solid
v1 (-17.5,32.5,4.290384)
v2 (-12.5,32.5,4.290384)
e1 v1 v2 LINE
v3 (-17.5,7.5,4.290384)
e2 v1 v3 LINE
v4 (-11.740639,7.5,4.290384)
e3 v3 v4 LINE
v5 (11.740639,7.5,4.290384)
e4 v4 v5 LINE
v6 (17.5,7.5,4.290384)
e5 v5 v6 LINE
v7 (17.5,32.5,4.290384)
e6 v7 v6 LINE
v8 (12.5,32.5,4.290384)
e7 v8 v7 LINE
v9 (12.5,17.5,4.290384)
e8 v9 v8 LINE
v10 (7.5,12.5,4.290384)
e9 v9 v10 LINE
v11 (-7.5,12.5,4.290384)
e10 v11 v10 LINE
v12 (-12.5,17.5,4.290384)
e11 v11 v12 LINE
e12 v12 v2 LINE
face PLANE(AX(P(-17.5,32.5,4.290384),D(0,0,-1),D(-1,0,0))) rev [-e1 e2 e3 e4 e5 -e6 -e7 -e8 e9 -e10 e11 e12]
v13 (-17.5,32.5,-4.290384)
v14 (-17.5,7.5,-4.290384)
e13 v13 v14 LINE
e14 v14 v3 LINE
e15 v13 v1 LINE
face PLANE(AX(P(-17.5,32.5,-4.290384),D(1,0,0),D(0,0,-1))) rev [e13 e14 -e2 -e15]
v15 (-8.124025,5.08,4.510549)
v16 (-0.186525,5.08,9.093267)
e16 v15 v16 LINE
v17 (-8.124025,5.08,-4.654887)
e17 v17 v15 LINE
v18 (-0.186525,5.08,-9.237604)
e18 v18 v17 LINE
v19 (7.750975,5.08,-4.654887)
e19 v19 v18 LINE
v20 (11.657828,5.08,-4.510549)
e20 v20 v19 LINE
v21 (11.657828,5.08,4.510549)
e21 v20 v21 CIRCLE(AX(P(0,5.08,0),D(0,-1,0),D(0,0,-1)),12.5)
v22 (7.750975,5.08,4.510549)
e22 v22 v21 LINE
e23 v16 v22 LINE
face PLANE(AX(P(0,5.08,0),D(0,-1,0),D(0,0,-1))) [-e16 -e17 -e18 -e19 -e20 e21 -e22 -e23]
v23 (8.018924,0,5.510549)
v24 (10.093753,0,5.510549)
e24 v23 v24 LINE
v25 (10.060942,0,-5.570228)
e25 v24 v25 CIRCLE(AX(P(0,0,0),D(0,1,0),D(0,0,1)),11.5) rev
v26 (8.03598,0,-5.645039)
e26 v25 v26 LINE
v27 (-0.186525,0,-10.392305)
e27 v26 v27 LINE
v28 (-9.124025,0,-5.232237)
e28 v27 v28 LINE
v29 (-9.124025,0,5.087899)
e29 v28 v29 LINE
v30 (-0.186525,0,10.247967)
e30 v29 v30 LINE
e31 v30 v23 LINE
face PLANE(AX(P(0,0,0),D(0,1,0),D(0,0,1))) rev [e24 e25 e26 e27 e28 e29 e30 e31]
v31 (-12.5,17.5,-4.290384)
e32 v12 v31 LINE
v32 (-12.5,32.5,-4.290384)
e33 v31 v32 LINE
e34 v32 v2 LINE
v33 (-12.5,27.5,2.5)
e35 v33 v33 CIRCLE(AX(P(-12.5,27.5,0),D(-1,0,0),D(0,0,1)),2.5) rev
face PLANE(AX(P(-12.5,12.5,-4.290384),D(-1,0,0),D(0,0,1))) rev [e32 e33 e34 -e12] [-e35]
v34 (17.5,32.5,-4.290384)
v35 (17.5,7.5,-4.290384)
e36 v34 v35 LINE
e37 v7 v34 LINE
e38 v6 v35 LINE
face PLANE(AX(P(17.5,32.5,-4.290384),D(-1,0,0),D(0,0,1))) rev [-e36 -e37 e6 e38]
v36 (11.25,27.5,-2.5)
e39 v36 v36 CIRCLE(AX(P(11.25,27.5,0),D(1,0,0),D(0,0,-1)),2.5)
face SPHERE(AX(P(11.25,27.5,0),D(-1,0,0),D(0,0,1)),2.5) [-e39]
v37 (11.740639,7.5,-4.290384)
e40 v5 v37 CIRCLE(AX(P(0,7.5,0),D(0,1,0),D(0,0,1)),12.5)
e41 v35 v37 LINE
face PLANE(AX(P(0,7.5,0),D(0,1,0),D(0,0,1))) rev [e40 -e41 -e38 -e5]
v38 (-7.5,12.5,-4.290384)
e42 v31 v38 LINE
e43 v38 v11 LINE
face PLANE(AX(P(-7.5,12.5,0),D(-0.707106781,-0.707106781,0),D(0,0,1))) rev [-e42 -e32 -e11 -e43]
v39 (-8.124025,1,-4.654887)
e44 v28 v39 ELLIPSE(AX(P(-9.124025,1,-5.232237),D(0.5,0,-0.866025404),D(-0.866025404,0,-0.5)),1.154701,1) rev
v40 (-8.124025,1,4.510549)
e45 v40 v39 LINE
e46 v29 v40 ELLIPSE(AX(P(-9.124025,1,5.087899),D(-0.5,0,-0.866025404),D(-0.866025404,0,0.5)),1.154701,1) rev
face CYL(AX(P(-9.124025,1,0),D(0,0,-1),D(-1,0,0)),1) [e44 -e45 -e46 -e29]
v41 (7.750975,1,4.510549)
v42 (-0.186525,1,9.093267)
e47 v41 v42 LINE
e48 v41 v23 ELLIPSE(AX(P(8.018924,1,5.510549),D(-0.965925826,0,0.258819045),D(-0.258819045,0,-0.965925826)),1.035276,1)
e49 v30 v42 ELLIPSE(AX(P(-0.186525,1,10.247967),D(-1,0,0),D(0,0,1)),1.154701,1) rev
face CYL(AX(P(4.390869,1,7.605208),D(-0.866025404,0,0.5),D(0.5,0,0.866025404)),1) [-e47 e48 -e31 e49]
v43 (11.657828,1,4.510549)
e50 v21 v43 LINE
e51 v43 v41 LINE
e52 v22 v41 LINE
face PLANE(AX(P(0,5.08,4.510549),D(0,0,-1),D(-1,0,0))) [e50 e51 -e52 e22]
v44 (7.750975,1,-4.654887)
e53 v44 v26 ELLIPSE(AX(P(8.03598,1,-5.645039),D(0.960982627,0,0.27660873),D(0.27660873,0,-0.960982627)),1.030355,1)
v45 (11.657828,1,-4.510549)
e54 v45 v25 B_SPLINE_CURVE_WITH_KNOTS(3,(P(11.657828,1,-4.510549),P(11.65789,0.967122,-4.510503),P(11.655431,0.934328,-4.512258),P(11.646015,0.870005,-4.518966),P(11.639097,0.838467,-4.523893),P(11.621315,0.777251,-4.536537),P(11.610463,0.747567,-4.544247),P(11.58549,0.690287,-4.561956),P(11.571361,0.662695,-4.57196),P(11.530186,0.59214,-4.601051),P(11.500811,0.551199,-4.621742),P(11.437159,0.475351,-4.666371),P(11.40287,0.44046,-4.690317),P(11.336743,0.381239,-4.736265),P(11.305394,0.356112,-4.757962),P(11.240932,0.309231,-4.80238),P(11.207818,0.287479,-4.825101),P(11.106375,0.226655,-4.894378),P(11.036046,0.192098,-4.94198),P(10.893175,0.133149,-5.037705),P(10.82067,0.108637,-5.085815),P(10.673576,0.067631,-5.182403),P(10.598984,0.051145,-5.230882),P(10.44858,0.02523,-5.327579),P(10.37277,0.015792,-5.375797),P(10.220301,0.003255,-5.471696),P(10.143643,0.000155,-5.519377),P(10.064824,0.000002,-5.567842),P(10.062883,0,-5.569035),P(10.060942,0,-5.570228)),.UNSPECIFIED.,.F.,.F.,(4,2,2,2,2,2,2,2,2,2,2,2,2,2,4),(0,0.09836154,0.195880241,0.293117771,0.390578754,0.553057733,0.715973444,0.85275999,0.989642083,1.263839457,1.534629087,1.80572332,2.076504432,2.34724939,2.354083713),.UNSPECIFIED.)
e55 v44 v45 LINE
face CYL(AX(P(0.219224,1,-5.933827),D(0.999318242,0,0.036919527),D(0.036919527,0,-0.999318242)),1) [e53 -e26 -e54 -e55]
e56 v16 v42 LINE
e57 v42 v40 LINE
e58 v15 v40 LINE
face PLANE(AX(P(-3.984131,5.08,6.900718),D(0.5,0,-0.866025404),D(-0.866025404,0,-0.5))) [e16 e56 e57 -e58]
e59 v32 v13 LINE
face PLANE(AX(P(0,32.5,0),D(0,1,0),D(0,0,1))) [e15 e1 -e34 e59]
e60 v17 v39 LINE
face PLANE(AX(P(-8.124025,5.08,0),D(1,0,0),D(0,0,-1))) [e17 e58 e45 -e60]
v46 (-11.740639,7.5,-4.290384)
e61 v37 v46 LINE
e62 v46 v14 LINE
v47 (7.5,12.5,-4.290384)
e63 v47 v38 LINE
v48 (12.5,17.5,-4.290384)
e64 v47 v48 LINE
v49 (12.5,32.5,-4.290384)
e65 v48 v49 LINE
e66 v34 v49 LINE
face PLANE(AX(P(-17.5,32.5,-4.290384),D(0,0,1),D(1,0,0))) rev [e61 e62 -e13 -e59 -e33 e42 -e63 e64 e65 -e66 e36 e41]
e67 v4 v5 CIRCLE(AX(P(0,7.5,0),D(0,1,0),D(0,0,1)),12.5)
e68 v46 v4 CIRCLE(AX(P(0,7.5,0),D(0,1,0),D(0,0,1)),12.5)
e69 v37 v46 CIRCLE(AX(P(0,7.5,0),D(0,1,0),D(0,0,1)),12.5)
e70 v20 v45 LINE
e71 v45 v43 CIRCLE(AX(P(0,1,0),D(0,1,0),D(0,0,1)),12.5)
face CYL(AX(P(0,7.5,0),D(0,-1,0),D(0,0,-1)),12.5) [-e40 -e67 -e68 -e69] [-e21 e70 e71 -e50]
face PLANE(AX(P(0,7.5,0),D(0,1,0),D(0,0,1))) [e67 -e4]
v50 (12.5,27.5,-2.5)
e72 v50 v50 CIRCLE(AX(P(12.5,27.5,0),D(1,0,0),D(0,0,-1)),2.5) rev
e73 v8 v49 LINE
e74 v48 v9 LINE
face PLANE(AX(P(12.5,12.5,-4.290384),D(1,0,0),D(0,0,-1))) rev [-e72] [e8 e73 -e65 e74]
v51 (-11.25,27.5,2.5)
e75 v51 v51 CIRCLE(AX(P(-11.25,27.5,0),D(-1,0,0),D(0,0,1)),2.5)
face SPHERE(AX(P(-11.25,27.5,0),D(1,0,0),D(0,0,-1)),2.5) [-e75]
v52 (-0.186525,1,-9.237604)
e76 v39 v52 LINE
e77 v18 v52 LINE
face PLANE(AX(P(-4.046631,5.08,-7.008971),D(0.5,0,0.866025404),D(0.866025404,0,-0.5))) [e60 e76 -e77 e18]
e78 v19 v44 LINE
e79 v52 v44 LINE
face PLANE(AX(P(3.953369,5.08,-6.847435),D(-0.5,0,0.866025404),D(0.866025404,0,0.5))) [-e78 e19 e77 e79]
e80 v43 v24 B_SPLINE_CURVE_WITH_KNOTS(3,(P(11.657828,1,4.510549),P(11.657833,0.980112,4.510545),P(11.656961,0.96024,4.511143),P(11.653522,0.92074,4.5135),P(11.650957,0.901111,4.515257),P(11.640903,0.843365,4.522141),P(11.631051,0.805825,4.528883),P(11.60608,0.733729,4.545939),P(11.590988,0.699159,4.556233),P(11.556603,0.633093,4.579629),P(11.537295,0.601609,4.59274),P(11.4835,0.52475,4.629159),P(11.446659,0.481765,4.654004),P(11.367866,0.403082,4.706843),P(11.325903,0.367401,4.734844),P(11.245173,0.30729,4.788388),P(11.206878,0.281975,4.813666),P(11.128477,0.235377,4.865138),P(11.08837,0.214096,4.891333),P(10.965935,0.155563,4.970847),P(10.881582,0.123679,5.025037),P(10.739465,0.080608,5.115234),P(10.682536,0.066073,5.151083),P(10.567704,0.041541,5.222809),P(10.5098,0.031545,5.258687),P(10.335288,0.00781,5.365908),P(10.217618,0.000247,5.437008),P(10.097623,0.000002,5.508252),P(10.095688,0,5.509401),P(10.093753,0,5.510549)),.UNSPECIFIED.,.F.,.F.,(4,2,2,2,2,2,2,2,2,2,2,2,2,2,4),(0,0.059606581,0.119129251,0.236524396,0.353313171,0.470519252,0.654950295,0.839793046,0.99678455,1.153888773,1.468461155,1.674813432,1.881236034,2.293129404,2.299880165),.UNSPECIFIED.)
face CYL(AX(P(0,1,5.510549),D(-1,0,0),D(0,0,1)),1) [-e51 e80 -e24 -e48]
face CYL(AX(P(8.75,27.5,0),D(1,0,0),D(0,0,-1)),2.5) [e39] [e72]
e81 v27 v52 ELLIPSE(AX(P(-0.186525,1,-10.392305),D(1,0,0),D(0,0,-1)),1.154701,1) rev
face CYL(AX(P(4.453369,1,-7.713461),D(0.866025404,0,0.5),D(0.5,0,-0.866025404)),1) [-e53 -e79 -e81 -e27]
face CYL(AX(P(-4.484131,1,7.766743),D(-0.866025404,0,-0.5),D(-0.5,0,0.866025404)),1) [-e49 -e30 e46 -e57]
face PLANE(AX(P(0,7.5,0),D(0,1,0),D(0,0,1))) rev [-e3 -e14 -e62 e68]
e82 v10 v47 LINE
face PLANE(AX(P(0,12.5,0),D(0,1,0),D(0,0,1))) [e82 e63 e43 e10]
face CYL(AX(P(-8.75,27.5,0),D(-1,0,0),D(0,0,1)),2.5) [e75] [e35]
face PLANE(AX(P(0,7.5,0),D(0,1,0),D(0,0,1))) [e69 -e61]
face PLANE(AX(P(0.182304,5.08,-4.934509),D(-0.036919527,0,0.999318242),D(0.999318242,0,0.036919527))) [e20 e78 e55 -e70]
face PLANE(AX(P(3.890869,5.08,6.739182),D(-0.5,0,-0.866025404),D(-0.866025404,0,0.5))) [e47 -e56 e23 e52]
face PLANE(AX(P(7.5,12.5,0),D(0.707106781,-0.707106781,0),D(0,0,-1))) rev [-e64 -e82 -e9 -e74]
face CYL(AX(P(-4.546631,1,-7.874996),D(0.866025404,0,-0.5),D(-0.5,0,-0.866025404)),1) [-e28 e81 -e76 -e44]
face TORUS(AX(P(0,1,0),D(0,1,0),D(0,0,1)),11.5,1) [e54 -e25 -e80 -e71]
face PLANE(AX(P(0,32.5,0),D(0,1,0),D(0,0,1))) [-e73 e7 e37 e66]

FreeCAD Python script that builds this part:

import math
import FreeCAD as App
import Part
import Sketcher
from FreeCAD import Vector
Q = App.Units.Quantity


def edges_at(feature, points):
    """Names of the edges that pass closest to the given points."""
    edges = feature.Shape.Edges
    near = lambda p: min(range(len(edges)), key=lambda i: edges[i].distToShape(Part.Vertex(*p))[0])
    return sorted({f"Edge{near(p) + 1}" for p in points})

doc = App.newDocument("Part")
params = doc.addObject("Spreadsheet::Sheet", "Params")
for row, (alias, value) in enumerate([
    ("sketch1_diameter", "25 mm"),
    ("pad1_length", "7.5 mm"),
    ("sketch2_width", "35 mm"),
    ("pad2_length", "25 mm"),
    ("sketch3_width", "25 mm"),
    ("pocket1_length", "20 mm"),
    ("sketch4_diameter", "5 mm"),
    ("pad3_length", "3.75 mm"),
    ("sketch5_diameter", "5 mm"),
    ("pad4_length", "3.75 mm"),
    ("fillet_radius", "2.5 mm"),
    ("fillet2_radius", "2.5 mm"),
    ("chamfer_size", "5 mm"),
    ("chamfer2_size", "5 mm"),
    ("sketch6_radius", "12.5 mm"),
    ("pocket2_length", "5.08 mm"),
    ("fillet3_radius", "1 mm"),
], start=1):
    params.set(f"A{row}", alias)
    params.set(f"B{row}", "=" + value)
    params.setAlias(f"B{row}", alias)

body = doc.addObject("PartDesign::Body", "Body")

sketch1 = body.newObject("Sketcher::SketchObject", "Sketch")
sketch1.AttachmentSupport = (doc.getObject("XZ_Plane"), [""])
sketch1.MapMode = "FlatFace"
sketch1.addGeometry(Part.Circle(Vector(0, 0, 0), Vector(0, 0, 1), 12), False)
sketch1.addConstraint(Sketcher.Constraint("Coincident", 0, 3, -1, 1))
sketch1.addConstraint(Sketcher.Constraint("Diameter", 0, 25.0))
sketch1.setExpression("Constraints[1]", "Params.sketch1_diameter")
pad1 = body.newObject("PartDesign::Pad", "Pad")
pad1.Profile = sketch1
pad1.setExpression("Length", "Params.pad1_length")
pad1.Reversed = True

sketch2 = body.newObject("Sketcher::SketchObject", "Sketch001")
sketch2.AttachmentSupport = (doc.getObject("XZ_Plane"), [""])
sketch2.MapMode = "FlatFace"
sketch2.AttachmentOffset = App.Placement(Vector(0, 0, -7.5), App.Rotation())
sketch2.addGeometry(Part.LineSegment(Vector(-18, -4, 0), Vector(-18, 4, 0)), False)
sketch2.addGeometry(Part.LineSegment(Vector(-18, 4, 0), Vector(18, 4, 0)), False)
sketch2.addGeometry(Part.LineSegment(Vector(18, 4, 0), Vector(18, -4, 0)), False)
sketch2.addGeometry(Part.LineSegment(Vector(18, -4, 0), Vector(-18, -4, 0)), False)
sketch2.addConstraint(Sketcher.Constraint("Coincident", 0, 2, 1, 1))
sketch2.addConstraint(Sketcher.Constraint("Coincident", 1, 2, 2, 1))
sketch2.addConstraint(Sketcher.Constraint("Coincident", 2, 2, 3, 1))
sketch2.addConstraint(Sketcher.Constraint("Coincident", 3, 2, 0, 1))
sketch2.addConstraint(Sketcher.Constraint("Vertical", 0))
sketch2.addConstraint(Sketcher.Constraint("Horizontal", 1))
sketch2.addConstraint(Sketcher.Constraint("Vertical", 2))
sketch2.addConstraint(Sketcher.Constraint("Horizontal", 3))
sketch2.addConstraint(Sketcher.Constraint("Symmetric", 0, 2, 2, 2, -1, 1))
sketch2.addConstraint(Sketcher.Constraint("DistanceX", 1, 1, 1, 2, 35.0))
sketch2.addConstraint(Sketcher.Constraint("DistanceY", 0, 1, 0, 2, 8.580768))
sketch2.setExpression("Constraints[9]", "Params.sketch2_width")
pad2 = body.newObject("PartDesign::Pad", "Pad001")
pad2.Profile = sketch2
pad2.setExpression("Length", "Params.pad2_length")
pad2.Reversed = True

sketch3 = body.newObject("Sketcher::SketchObject", "Sketch002")
sketch3.AttachmentSupport = (doc.getObject("XZ_Plane"), [""])
sketch3.MapMode = "FlatFace"
sketch3.AttachmentOffset = App.Placement(Vector(0, 0, -32.5), App.Rotation())
sketch3.addGeometry(Part.LineSegment(Vector(-12, -4, 0), Vector(-12, 4, 0)), False)
sketch3.addGeometry(Part.LineSegment(Vector(-12, 4, 0), Vector(12, 4, 0)), False)
sketch3.addGeometry(Part.LineSegment(Vector(12, 4, 0), Vector(12, -4, 0)), False)
sketch3.addGeometry(Part.LineSegment(Vector(12, -4, 0), Vector(-12, -4, 0)), False)
sketch3.addConstraint(Sketcher.Constraint("Coincident", 0, 2, 1, 1))
sketch3.addConstraint(Sketcher.Constraint("Coincident", 1, 2, 2, 1))
sketch3.addConstraint(Sketcher.Constraint("Coincident", 2, 2, 3, 1))
sketch3.addConstraint(Sketcher.Constraint("Coincident", 3, 2, 0, 1))
sketch3.addConstraint(Sketcher.Constraint("Vertical", 0))
sketch3.addConstraint(Sketcher.Constraint("Horizontal", 1))
sketch3.addConstraint(Sketcher.Constraint("Vertical", 2))
sketch3.addConstraint(Sketcher.Constraint("Horizontal", 3))
sketch3.addConstraint(Sketcher.Constraint("Symmetric", 0, 2, 2, 2, -1, 1))
sketch3.addConstraint(Sketcher.Constraint("DistanceX", 1, 1, 1, 2, 25.0))
sketch3.addConstraint(Sketcher.Constraint("DistanceY", 0, 1, 0, 2, 8.580768))
sketch3.setExpression("Constraints[9]", "Params.sketch3_width")
pocket1 = body.newObject("PartDesign::Pocket", "Pocket")
pocket1.Profile = sketch3
pocket1.setExpression("Length", "Params.pocket1_length")
pocket1.Reversed = True

sketch4 = body.newObject("Sketcher::SketchObject", "Sketch003")
sketch4.AttachmentSupport = (doc.getObject("YZ_Plane"), [""])
sketch4.MapMode = "FlatFace"
sketch4.AttachmentOffset = App.Placement(Vector(0, 0, -12.5), App.Rotation())
sketch4.addGeometry(Part.Circle(Vector(27.5, 0, 0), Vector(0, 0, 1), 2.5), False)
sketch4.addConstraint(Sketcher.Constraint("PointOnObject", 0, 3, -1))
sketch4.addConstraint(Sketcher.Constraint("Diameter", 0, 5.0))
sketch4.addConstraint(Sketcher.Constraint("DistanceX", -1, 1, 0, 3, 27.5))
sketch4.setExpression("Constraints[1]", "Params.sketch4_diameter")
pad3 = body.newObject("PartDesign::Pad", "Pad002")
pad3.Profile = sketch4
pad3.setExpression("Length", "Params.pad3_length")

sketch5 = body.newObject("Sketcher::SketchObject", "Sketch004")
sketch5.AttachmentSupport = (doc.getObject("YZ_Plane"), [""])
sketch5.MapMode = "FlatFace"
sketch5.AttachmentOffset = App.Placement(Vector(0, 0, 12.5), App.Rotation())
sketch5.addGeometry(Part.Circle(Vector(27.5, 0, 0), Vector(0, 0, 1), 2.5), False)
sketch5.addConstraint(Sketcher.Constraint("PointOnObject", 0, 3, -1))
sketch5.addConstraint(Sketcher.Constraint("Diameter", 0, 5.0))
sketch5.addConstraint(Sketcher.Constraint("DistanceX", -1, 1, 0, 3, 27.5))
sketch5.setExpression("Constraints[1]", "Params.sketch5_diameter")
pad4 = body.newObject("PartDesign::Pad", "Pad003")
pad4.Profile = sketch5
pad4.setExpression("Length", "Params.pad4_length")
pad4.Reversed = True
doc.recompute()

fillet = body.newObject("PartDesign::Fillet", "Fillet")
fillet.Base = (pad4, edges_at(pad4, [(-8.75, 27.5, 2.5)]))
fillet.setExpression("Radius", "Params.fillet_radius")
doc.recompute()

fillet2 = body.newObject("PartDesign::Fillet", "Fillet001")
fillet2.Base = (fillet, edges_at(fillet, [(8.75, 27.5, -2.5)]))
fillet2.setExpression("Radius", "Params.fillet2_radius")
doc.recompute()

chamfer = body.newObject("PartDesign::Chamfer", "Chamfer")
chamfer.Base = (fillet2, edges_at(fillet2, [(-12.5, 12.5, 0)]))
chamfer.setExpression("Size", "Params.chamfer_size")
doc.recompute()

chamfer2 = body.newObject("PartDesign::Chamfer", "Chamfer001")
chamfer2.Base = (chamfer, edges_at(chamfer, [(12.5, 12.5, 0)]))
chamfer2.setExpression("Size", "Params.chamfer2_size")

sketch6 = body.newObject("Sketcher::SketchObject", "Sketch005")
sketch6.AttachmentSupport = (doc.getObject("XZ_Plane"), [""])
sketch6.MapMode = "FlatFace"
sketch6.addGeometry(Part.LineSegment(Vector(7.8, -4.7, 0), Vector(11.7, -4.5, 0)), False)
sketch6.addGeometry(Part.ArcOfCircle(Part.Circle(Vector(0, 0, 0), Vector(0, 0, 1), 12.5), math.radians(-21), math.radians(0)), False)
sketch6.addGeometry(Part.ArcOfCircle(Part.Circle(Vector(0, 0, 0), Vector(0, 0, 1), 12.5), math.radians(0), math.radians(21)), False)
sketch6.addGeometry(Part.LineSegment(Vector(11.7, 4.5, 0), Vector(7.8, 4.5, 0)), False)
sketch6.addGeometry(Part.LineSegment(Vector(7.8, 4.5, 0), Vector(-0.2, 9.1, 0)), False)
sketch6.addGeometry(Part.LineSegment(Vector(-0.2, 9.1, 0), Vector(-8.1, 4.5, 0)), False)
sketch6.addGeometry(Part.LineSegment(Vector(-8.1, 4.5, 0), Vector(-8.1, -4.7, 0)), False)
sketch6.addGeometry(Part.LineSegment(Vector(-8.1, -4.7, 0), Vector(-0.2, -9.2, 0)), False)
sketch6.addGeometry(Part.LineSegment(Vector(-0.2, -9.2, 0), Vector(7.8, -4.7, 0)), False)
sketch6.addConstraint(Sketcher.Constraint("Coincident", 0, 2, 1, 1))
sketch6.addConstraint(Sketcher.Constraint("Tangent", 1, 2, 2, 1))
sketch6.addConstraint(Sketcher.Constraint("Coincident", 2, 2, 3, 1))
sketch6.addConstraint(Sketcher.Constraint("Coincident", 3, 2, 4, 1))
sketch6.addConstraint(Sketcher.Constraint("Coincident", 4, 2, 5, 1))
sketch6.addConstraint(Sketcher.Constraint("Coincident", 5, 2, 6, 1))
sketch6.addConstraint(Sketcher.Constraint("Coincident", 6, 2, 7, 1))
sketch6.addConstraint(Sketcher.Constraint("Coincident", 7, 2, 8, 1))
sketch6.addConstraint(Sketcher.Constraint("Coincident", 8, 2, 0, 1))
sketch6.addConstraint(Sketcher.Constraint("Horizontal", 3))
sketch6.addConstraint(Sketcher.Constraint("Vertical", 6))
sketch6.addConstraint(Sketcher.Constraint("Coincident", 1, 3, -1, 1))
sketch6.addConstraint(Sketcher.Constraint("Equal", 1, 2))
sketch6.addConstraint(Sketcher.Constraint("PointOnObject", 1, 2, -1))
sketch6.addConstraint(Sketcher.Constraint("Parallel", 4, 7))
sketch6.addConstraint(Sketcher.Constraint("Parallel", 5, 8))
sketch6.addConstraint(Sketcher.Constraint("Horizontal", 3, 2, 5, 2))
sketch6.addConstraint(Sketcher.Constraint("Horizontal", 6, 2, 8, 2))
sketch6.addConstraint(Sketcher.Constraint("Vertical", 0, 2, 2, 2))
sketch6.addConstraint(Sketcher.Constraint("Vertical", 4, 2, 7, 2))
sketch6.addConstraint(Sketcher.Constraint("Vertical", 3, 2, 8, 2))
sketch6.addConstraint(Sketcher.Constraint("Radius", 1, 12.5))
sketch6.addConstraint(Sketcher.Constraint("Angle", 4, Q("150 deg")))
sketch6.addConstraint(Sketcher.Constraint("DistanceX", 5, 2, 3, 2, 15.875))
sketch6.addConstraint(Sketcher.Constraint("Distance", 0, 3.909518))
sketch6.addConstraint(Sketcher.Constraint("DistanceX", 3, 2, 3, 1, 3.906853))
sketch6.addConstraint(Sketcher.Constraint("DistanceY", 6, 2, 6, 1, 9.165436))
sketch6.setExpression("Constraints[21]", "Params.sketch6_radius")
pocket2 = body.newObject("PartDesign::Pocket", "Pocket001")
pocket2.Profile = sketch6
pocket2.setExpression("Length", "Params.pocket2_length")
doc.recompute()

fillet3 = body.newObject("PartDesign::Fillet", "Fillet002")
fillet3.Base = (pocket2, edges_at(pocket2, [
    (-12.5, 0, 0),
    (9.704, 0, 4.511),
    (9.704, 0, -4.583),
    (3.782, 0, -6.946),
    (-4.155, 0, -6.946),
    (-8.124, 0, -0.072),
    (-4.155, 0, 6.802),
    (3.782, 0, 6.802),
]))
fillet3.setExpression("Radius", "Params.fillet3_radius")

doc.recompute()
